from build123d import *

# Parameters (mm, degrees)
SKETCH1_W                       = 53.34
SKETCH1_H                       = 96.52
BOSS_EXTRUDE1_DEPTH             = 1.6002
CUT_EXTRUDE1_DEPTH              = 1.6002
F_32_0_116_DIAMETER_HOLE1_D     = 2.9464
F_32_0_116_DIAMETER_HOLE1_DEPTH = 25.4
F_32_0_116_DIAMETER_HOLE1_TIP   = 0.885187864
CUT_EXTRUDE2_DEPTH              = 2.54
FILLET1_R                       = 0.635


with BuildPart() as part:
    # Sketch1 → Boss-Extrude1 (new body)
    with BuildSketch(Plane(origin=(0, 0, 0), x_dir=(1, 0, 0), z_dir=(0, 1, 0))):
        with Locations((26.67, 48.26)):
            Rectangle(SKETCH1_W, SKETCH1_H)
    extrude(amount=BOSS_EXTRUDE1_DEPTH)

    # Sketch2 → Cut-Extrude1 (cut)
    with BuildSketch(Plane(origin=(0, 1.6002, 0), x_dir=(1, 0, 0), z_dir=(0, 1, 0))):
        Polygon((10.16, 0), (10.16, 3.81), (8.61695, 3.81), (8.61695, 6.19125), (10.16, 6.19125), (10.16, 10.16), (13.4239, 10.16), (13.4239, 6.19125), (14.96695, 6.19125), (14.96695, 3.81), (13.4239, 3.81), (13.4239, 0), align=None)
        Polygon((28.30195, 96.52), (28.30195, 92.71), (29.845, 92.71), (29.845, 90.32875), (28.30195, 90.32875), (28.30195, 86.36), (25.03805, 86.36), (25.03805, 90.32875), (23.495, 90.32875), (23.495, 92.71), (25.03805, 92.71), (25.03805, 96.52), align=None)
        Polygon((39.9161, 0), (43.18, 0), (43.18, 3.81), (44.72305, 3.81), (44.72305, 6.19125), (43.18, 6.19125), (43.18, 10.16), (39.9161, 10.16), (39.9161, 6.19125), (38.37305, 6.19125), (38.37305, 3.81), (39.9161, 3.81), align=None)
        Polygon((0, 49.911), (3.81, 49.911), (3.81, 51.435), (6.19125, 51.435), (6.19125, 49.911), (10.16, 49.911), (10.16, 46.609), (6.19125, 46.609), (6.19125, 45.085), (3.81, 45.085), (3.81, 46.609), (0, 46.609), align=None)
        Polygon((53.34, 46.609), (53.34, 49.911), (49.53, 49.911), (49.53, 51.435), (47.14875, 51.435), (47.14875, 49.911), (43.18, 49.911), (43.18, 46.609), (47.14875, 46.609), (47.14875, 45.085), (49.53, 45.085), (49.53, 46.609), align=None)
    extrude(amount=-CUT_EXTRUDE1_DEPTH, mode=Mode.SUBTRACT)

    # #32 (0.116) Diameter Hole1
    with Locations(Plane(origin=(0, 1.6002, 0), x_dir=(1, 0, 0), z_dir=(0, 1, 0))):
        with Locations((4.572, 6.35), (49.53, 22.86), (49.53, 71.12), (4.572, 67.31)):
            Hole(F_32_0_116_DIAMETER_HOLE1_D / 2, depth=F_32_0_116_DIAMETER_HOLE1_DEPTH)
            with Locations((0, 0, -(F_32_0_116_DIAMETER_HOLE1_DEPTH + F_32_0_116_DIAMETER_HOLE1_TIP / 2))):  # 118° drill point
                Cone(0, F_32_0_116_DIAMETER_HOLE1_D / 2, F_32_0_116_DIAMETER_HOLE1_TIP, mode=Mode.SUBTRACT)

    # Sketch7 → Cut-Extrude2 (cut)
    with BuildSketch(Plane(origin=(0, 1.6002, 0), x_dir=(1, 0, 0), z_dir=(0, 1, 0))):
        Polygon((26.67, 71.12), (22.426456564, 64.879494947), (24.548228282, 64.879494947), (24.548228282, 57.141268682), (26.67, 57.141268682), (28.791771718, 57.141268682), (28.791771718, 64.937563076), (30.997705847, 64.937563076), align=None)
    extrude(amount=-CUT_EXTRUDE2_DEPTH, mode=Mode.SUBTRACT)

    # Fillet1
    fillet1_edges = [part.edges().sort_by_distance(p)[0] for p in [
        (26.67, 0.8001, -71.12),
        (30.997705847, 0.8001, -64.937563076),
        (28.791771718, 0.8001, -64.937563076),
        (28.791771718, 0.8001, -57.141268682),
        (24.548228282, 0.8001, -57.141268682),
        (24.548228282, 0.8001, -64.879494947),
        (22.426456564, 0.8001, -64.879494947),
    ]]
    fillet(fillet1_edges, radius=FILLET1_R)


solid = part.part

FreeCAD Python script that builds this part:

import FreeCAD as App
import Part
import Sketcher
Q = App.Units.Quantity


def edges_at(feature, points):
    """Names of the edges that pass closest to the given points."""
    edges = feature.Shape.Edges
    near = lambda p: min(range(len(edges)), key=lambda i: edges[i].distToShape(Part.Vertex(*p))[0])
    return sorted({f"Edge{near(p) + 1}" for p in points})


def add_polygon(sketch, points):
    """Adds a closed chain of lines whose ends are joined by coincident constraints."""
    first, n = sketch.GeometryCount, len(points)
    for a, b in zip(points, points[1:] + points[:1]):
        sketch.addGeometry(Part.LineSegment(App.Vector(*a, 0), App.Vector(*b, 0)), False)
    for i in range(n):
        sketch.addConstraint(Sketcher.Constraint("Coincident", first + i, 2, first + (i + 1) % n, 1))

doc = App.newDocument("Part")
body = doc.addObject("PartDesign::Body", "Body")

sketch1 = body.newObject("Sketcher::SketchObject", "Sketch")
sketch1.AttachmentSupport = (doc.getObject("XZ_Plane"), [""])
sketch1.MapMode = "FlatFace"
add_polygon(sketch1, [(0, -96.52), (0, 0), (53.34, 0), (53.34, -96.52)])
sketch1.addConstraint(Sketcher.Constraint("Vertical", 0))
sketch1.addConstraint(Sketcher.Constraint("Horizontal", 1))
sketch1.addConstraint(Sketcher.Constraint("Vertical", 2))
sketch1.addConstraint(Sketcher.Constraint("Horizontal", 3))
sketch1.addConstraint(Sketcher.Constraint("Coincident", 0, 2, -1, 1))
sketch1.addConstraint(Sketcher.Constraint("DistanceX", 1, 1, 1, 2, Q("2.1 in")))
sketch1.addConstraint(Sketcher.Constraint("DistanceY", 0, 1, 0, 2, Q("3.8 in")))
pad1 = body.newObject("PartDesign::Pad", "Pad")
pad1.Profile = sketch1
pad1.Length = Q("0.063 in")
pad1.Reversed = True

sketch2 = body.newObject("Sketcher::SketchObject", "Sketch001")
sketch2.AttachmentSupport = (doc.getObject("XZ_Plane"), [""])
sketch2.MapMode = "FlatFace"
sketch2.AttachmentOffset = App.Placement(App.Vector(0, 0, -0.063 * 25.4), App.Rotation())
add_polygon(sketch2, [(10.16, -3.81), (10.16, 0), (13.4239, 0), (13.4239, -3.81), (14.96695, -3.81), (14.96695, -6.19125), (13.4239, -6.19125), (13.4239, -10.16), (10.16, -10.16), (10.16, -6.19125), (8.61695, -6.19125), (8.61695, -3.81)])
add_polygon(sketch2, [(28.30195, -92.71), (28.30195, -96.52), (25.03805, -96.52), (25.03805, -92.71), (23.495, -92.71), (23.495, -90.32875), (25.03805, -90.32875), (25.03805, -86.36), (28.30195, -86.36), (28.30195, -90.32875), (29.845, -90.32875), (29.845, -92.71)])
add_polygon(sketch2, [(39.9161, 0), (43.18, 0), (43.18, -3.81), (44.72305, -3.81), (44.72305, -6.19125), (43.18, -6.19125), (43.18, -10.16), (39.9161, -10.16), (39.9161, -6.19125), (38.37305, -6.19125), (38.37305, -3.81), (39.9161, -3.81)])
add_polygon(sketch2, [(3.81, -49.911), (0, -49.911), (0, -46.609), (3.81, -46.609), (3.81, -45.085), (6.19125, -45.085), (6.19125, -46.609), (10.16, -46.609), (10.16, -49.911), (6.19125, -49.911), (6.19125, -51.435), (3.81, -51.435)])
add_polygon(sketch2, [(53.34, -46.609), (53.34, -49.911), (49.53, -49.911), (49.53, -51.435), (47.14875, -51.435), (47.14875, -49.911), (43.18, -49.911), (43.18, -46.609), (47.14875, -46.609), (47.14875, -45.085), (49.53, -45.085), (49.53, -46.609)])
sketch2.addConstraint(Sketcher.Constraint("Vertical", 0))
sketch2.addConstraint(Sketcher.Constraint("Horizontal", 1))
sketch2.addConstraint(Sketcher.Constraint("Vertical", 2))
sketch2.addConstraint(Sketcher.Constraint("Horizontal", 3))
sketch2.addConstraint(Sketcher.Constraint("Vertical", 4))
sketch2.addConstraint(Sketcher.Constraint("Horizontal", 5))
sketch2.addConstraint(Sketcher.Constraint("Vertical", 6))
sketch2.addConstraint(Sketcher.Constraint("Horizontal", 7))
sketch2.addConstraint(Sketcher.Constraint("Vertical", 8))
sketch2.addConstraint(Sketcher.Constraint("Horizontal", 9))
sketch2.addConstraint(Sketcher.Constraint("Vertical", 10))
sketch2.addConstraint(Sketcher.Constraint("Horizontal", 11))
sketch2.addConstraint(Sketcher.Constraint("Vertical", 12))
sketch2.addConstraint(Sketcher.Constraint("Horizontal", 13))
sketch2.addConstraint(Sketcher.Constraint("Vertical", 14))
sketch2.addConstraint(Sketcher.Constraint("Horizontal", 15))
sketch2.addConstraint(Sketcher.Constraint("Vertical", 16))
sketch2.addConstraint(Sketcher.Constraint("Horizontal", 17))
sketch2.addConstraint(Sketcher.Constraint("Vertical", 18))
sketch2.addConstraint(Sketcher.Constraint("Horizontal", 19))
sketch2.addConstraint(Sketcher.Constraint("Vertical", 20))
sketch2.addConstraint(Sketcher.Constraint("Horizontal", 21))
sketch2.addConstraint(Sketcher.Constraint("Vertical", 22))
sketch2.addConstraint(Sketcher.Constraint("Horizontal", 23))
sketch2.addConstraint(Sketcher.Constraint("Horizontal", 24))
sketch2.addConstraint(Sketcher.Constraint("Vertical", 25))
sketch2.addConstraint(Sketcher.Constraint("Horizontal", 26))
sketch2.addConstraint(Sketcher.Constraint("Vertical", 27))
sketch2.addConstraint(Sketcher.Constraint("Horizontal", 28))
sketch2.addConstraint(Sketcher.Constraint("Vertical", 29))
sketch2.addConstraint(Sketcher.Constraint("Horizontal", 30))
sketch2.addConstraint(Sketcher.Constraint("Vertical", 31))
sketch2.addConstraint(Sketcher.Constraint("Horizontal", 32))
sketch2.addConstraint(Sketcher.Constraint("Vertical", 33))
sketch2.addConstraint(Sketcher.Constraint("Horizontal", 34))
sketch2.addConstraint(Sketcher.Constraint("Vertical", 35))
sketch2.addConstraint(Sketcher.Constraint("Horizontal", 36))
sketch2.addConstraint(Sketcher.Constraint("Vertical", 37))
sketch2.addConstraint(Sketcher.Constraint("Horizontal", 38))
sketch2.addConstraint(Sketcher.Constraint("Vertical", 39))
sketch2.addConstraint(Sketcher.Constraint("Horizontal", 40))
sketch2.addConstraint(Sketcher.Constraint("Vertical", 41))
sketch2.addConstraint(Sketcher.Constraint("Horizontal", 42))
sketch2.addConstraint(Sketcher.Constraint("Vertical", 43))
sketch2.addConstraint(Sketcher.Constraint("Horizontal", 44))
sketch2.addConstraint(Sketcher.Constraint("Vertical", 45))
sketch2.addConstraint(Sketcher.Constraint("Horizontal", 46))
sketch2.addConstraint(Sketcher.Constraint("Vertical", 47))
sketch2.addConstraint(Sketcher.Constraint("Vertical", 48))
sketch2.addConstraint(Sketcher.Constraint("Horizontal", 49))
sketch2.addConstraint(Sketcher.Constraint("Vertical", 50))
sketch2.addConstraint(Sketcher.Constraint("Horizontal", 51))
sketch2.addConstraint(Sketcher.Constraint("Vertical", 52))
sketch2.addConstraint(Sketcher.Constraint("Horizontal", 53))
sketch2.addConstraint(Sketcher.Constraint("Vertical", 54))
sketch2.addConstraint(Sketcher.Constraint("Horizontal", 55))
sketch2.addConstraint(Sketcher.Constraint("Vertical", 56))
sketch2.addConstraint(Sketcher.Constraint("Horizontal", 57))
sketch2.addConstraint(Sketcher.Constraint("Vertical", 58))
sketch2.addConstraint(Sketcher.Constraint("Horizontal", 59))
sketch2.addConstraint(Sketcher.Constraint("PointOnObject", 0, 2, -1))
sketch2.addConstraint(Sketcher.Constraint("PointOnObject", 24, 2, -1))
sketch2.addConstraint(Sketcher.Constraint("PointOnObject", 36, 2, -2))
sketch2.addConstraint(Sketcher.Constraint("Horizontal", 5, 2, 8, 2))
sketch2.addConstraint(Sketcher.Constraint("Horizontal", 3, 2, 10, 2))
sketch2.addConstraint(Sketcher.Constraint("Horizontal", 17, 2, 20, 2))
sketch2.addConstraint(Sketcher.Constraint("Horizontal", 15, 2, 22, 2))
sketch2.addConstraint(Sketcher.Constraint("Horizontal", 11, 2, 25, 2))
sketch2.addConstraint(Sketcher.Constraint("Horizontal", 9, 2, 27, 2))
sketch2.addConstraint(Sketcher.Constraint("Horizontal", 7, 2, 29, 2))
sketch2.addConstraint(Sketcher.Constraint("Horizontal", 28, 2, 31, 2))
sketch2.addConstraint(Sketcher.Constraint("Horizontal", 26, 2, 33, 2))
sketch2.addConstraint(Sketcher.Constraint("Horizontal", 38, 2, 41, 2))
sketch2.addConstraint(Sketcher.Constraint("Horizontal", 36, 2, 43, 2))
sketch2.addConstraint(Sketcher.Constraint("Horizontal", 47, 2, 48, 2))
sketch2.addConstraint(Sketcher.Constraint("Horizontal", 46, 2, 50, 2))
sketch2.addConstraint(Sketcher.Constraint("Horizontal", 49, 2, 52, 2))
sketch2.addConstraint(Sketcher.Constraint("Horizontal", 42, 2, 54, 2))
sketch2.addConstraint(Sketcher.Constraint("Horizontal", 40, 2, 56, 2))
sketch2.addConstraint(Sketcher.Constraint("Horizontal", 55, 2, 58, 2))
sketch2.addConstraint(Sketcher.Constraint("Vertical", 2, 2, 5, 2))
sketch2.addConstraint(Sketcher.Constraint("Vertical", 0, 2, 7, 2))
sketch2.addConstraint(Sketcher.Constraint("Vertical", 14, 2, 17, 2))
sketch2.addConstraint(Sketcher.Constraint("Vertical", 12, 2, 19, 2))
sketch2.addConstraint(Sketcher.Constraint("Vertical", 25, 2, 28, 2))
sketch2.addConstraint(Sketcher.Constraint("Vertical", 31, 2, 34, 2))
sketch2.addConstraint(Sketcher.Constraint("Vertical", 11, 2, 42, 2))
sketch2.addConstraint(Sketcher.Constraint("Vertical", 41, 2, 44, 2))
sketch2.addConstraint(Sketcher.Constraint("Vertical", 39, 2, 46, 2))
sketch2.addConstraint(Sketcher.Constraint("Vertical", 29, 2, 53, 2))
sketch2.addConstraint(Sketcher.Constraint("Vertical", 52, 2, 55, 2))
sketch2.addConstraint(Sketcher.Constraint("Vertical", 50, 2, 57, 2))
sketch2.addConstraint(Sketcher.Constraint("Equal", 5, 9))
sketch2.addConstraint(Sketcher.Constraint("Equal", 7, 13))
sketch2.addConstraint(Sketcher.Constraint("Equal", 11, 15))
sketch2.addConstraint(Sketcher.Constraint("Equal", 17, 21))
sketch2.addConstraint(Sketcher.Constraint("Equal", 19, 24))
sketch2.addConstraint(Sketcher.Constraint("Equal", 23, 26))
sketch2.addConstraint(Sketcher.Constraint("Equal", 28, 32))
sketch2.addConstraint(Sketcher.Constraint("Equal", 38, 49))
sketch2.addConstraint(Sketcher.Constraint("Equal", 46, 51))
sketch2.addConstraint(Sketcher.Constraint("Equal", 44, 53))
sketch2.addConstraint(Sketcher.Constraint("Equal", 59, 0))
sketch2.addConstraint(Sketcher.Constraint("Equal", 57, 4))
sketch2.addConstraint(Sketcher.Constraint("Equal", 55, 6))
sketch2.addConstraint(Sketcher.Constraint("Equal", 2, 12))
sketch2.addConstraint(Sketcher.Constraint("Equal", 10, 16))
sketch2.addConstraint(Sketcher.Constraint("Equal", 8, 18))
sketch2.addConstraint(Sketcher.Constraint("Equal", 41, 45))
sketch2.addConstraint(Sketcher.Constraint("DistanceX", 36, 2, 36, 1, Q("0.15 in")))
sketch2.addConstraint(Sketcher.Constraint("DistanceY", 37, 1, 37, 2, Q("0.13 in")))
sketch2.addConstraint(Sketcher.Constraint("DistanceY", 39, 1, 39, 2, Q("0.06 in")))
sketch2.addConstraint(Sketcher.Constraint("DistanceX", -1, 1, 0, 2, Q("0.4 in")))
sketch2.addConstraint(Sketcher.Constraint("DistanceY", 12, 2, -1, 1, Q("3.8 in")))
sketch2.addConstraint(Sketcher.Constraint("DistanceX", -1, 1, 24, 2, Q("1.7 in")))
sketch2.addConstraint(Sketcher.Constraint("DistanceX", 40, 1, 40, 2, Q("0.09375 in")))
sketch2.addConstraint(Sketcher.Constraint("DistanceX", 1, 1, 1, 2, Q("0.1285 in")))
sketch2.addConstraint(Sketcher.Constraint("DistanceX", -1, 1, 15, 2, Q("0.925 in")))
sketch2.addConstraint(Sketcher.Constraint("DistanceX", -1, 1, 21, 2, Q("1.175 in")))
sketch2.addConstraint(Sketcher.Constraint("DistanceY", 36, 2, -1, 1, Q("1.965 in")))
pocket1 = body.newObject("PartDesign::Pocket", "Pocket")
pocket1.Profile = sketch2
pocket1.Length = Q("0.063 in")
pocket1.Reversed = True

sketch3 = body.newObject("Sketcher::SketchObject", "Sketch002")
sketch3.AttachmentSupport = (doc.getObject("XZ_Plane"), [""])
sketch3.MapMode = "FlatFace"
sketch3.AttachmentOffset = App.Placement(App.Vector(0, 0, -0.063 * 25.4), App.Rotation())
sketch3.addGeometry(Part.Circle(App.Vector(4.572, -6.35, 0), App.Vector(0, 0, 1), 1.4732), False)
sketch3.addGeometry(Part.Circle(App.Vector(49.53, -22.86, 0), App.Vector(0, 0, 1), 1.4732), False)
sketch3.addGeometry(Part.Circle(App.Vector(49.53, -71.12, 0), App.Vector(0, 0, 1), 1.4732), False)
sketch3.addGeometry(Part.Circle(App.Vector(4.572, -67.31, 0), App.Vector(0, 0, 1), 1.4732), False)
sketch3.addConstraint(Sketcher.Constraint("Equal", 0, 1))
sketch3.addConstraint(Sketcher.Constraint("Equal", 1, 2))
sketch3.addConstraint(Sketcher.Constraint("Equal", 2, 3))
sketch3.addConstraint(Sketcher.Constraint("Vertical", 1, 3, 2, 3))
sketch3.addConstraint(Sketcher.Constraint("Vertical", 0, 3, 3, 3))
sketch3.addConstraint(Sketcher.Constraint("Diameter", 0, Q("0.116 in")))
sketch3.addConstraint(Sketcher.Constraint("DistanceY", 1, 3, -1, 1, Q("0.9 in")))
sketch3.addConstraint(Sketcher.Constraint("DistanceY", 2, 3, -1, 1, Q("2.8 in")))
sketch3.addConstraint(Sketcher.Constraint("DistanceY", 3, 3, 0, 3, Q("2.4 in")))
sketch3.addConstraint(Sketcher.Constraint("DistanceX", -1, 1, 0, 3, Q("0.18 in")))
sketch3.addConstraint(Sketcher.Constraint("DistanceY", 0, 3, -1, 1, Q("0.25 in")))
sketch3.addConstraint(Sketcher.Constraint("DistanceX", -1, 1, 1, 3, Q("1.95 in")))
doc.recompute()
hole = body.newObject("PartDesign::Hole", "Hole")
hole.Profile = sketch3
hole.ThreadType = "None"
hole.Diameter = Q("0.116 in")
hole.DepthType = "Dimension"
hole.Depth = Q("1 in")
hole.DrillPoint = "Angled"
hole.DrillPointAngle = 118
hole.Reversed = True

sketch4 = body.newObject("Sketcher::SketchObject", "Sketch003")
sketch4.AttachmentSupport = (doc.getObject("XZ_Plane"), [""])
sketch4.MapMode = "FlatFace"
sketch4.AttachmentOffset = App.Placement(App.Vector(0, 0, -0.063 * 25.4), App.Rotation())
add_polygon(sketch4, [(26.67, -71.12), (22.426457, -64.879495), (24.548228, -64.879495), (24.548228, -57.141269), (28.791772, -57.141269), (28.791772, -64.937563), (30.997706, -64.937563)])
sketch4.addConstraint(Sketcher.Constraint("Horizontal", 1))
sketch4.addConstraint(Sketcher.Constraint("Vertical", 2))
sketch4.addConstraint(Sketcher.Constraint("Horizontal", 3))
sketch4.addConstraint(Sketcher.Constraint("Vertical", 4))
sketch4.addConstraint(Sketcher.Constraint("Horizontal", 5))
sketch4.addConstraint(Sketcher.Constraint("Equal", 0, 6))
sketch4.addConstraint(Sketcher.Constraint("DistanceY", 6, 2, -1, 1, Q("2.8 in")))
sketch4.addConstraint(Sketcher.Constraint("DistanceX", -1, 1, 6, 2, Q("1.05 in")))
sketch4.addConstraint(Sketcher.Constraint("DistanceX", 1, 1, 1, 2, Q("2.121772 mm")))
sketch4.addConstraint(Sketcher.Constraint("DistanceX", 3, 1, 3, 2, Q("4.243543 mm")))
sketch4.addConstraint(Sketcher.Constraint("DistanceX", 5, 1, 5, 2, Q("2.205934 mm")))
sketch4.addConstraint(Sketcher.Constraint("DistanceY", 2, 1, 2, 2, Q("7.738226 mm")))
sketch4.addConstraint(Sketcher.Constraint("DistanceY", 4, 2, 4, 1, Q("7.796294 mm")))
sketch4.addConstraint(Sketcher.Constraint("DistanceY", 2, 2, -1, 1, Q("57.141269 mm")))
pocket2 = body.newObject("PartDesign::Pocket", "Pocket001")
pocket2.Profile = sketch4
pocket2.Length = Q("0.1 in")
pocket2.Reversed = True
doc.recompute()

fillet = body.newObject("PartDesign::Fillet", "Fillet")
fillet.Base = (pocket2, edges_at(pocket2, [
    (26.67, 0.8, -71.12),
    (30.998, 0.8, -64.938),
    (28.792, 0.8, -64.938),
    (28.792, 0.8, -57.141),
    (24.548, 0.8, -57.141),
    (24.548, 0.8, -64.879),
    (22.426, 0.8, -64.879),
]))
fillet.Radius = Q("0.025 in")

doc.recompute()
